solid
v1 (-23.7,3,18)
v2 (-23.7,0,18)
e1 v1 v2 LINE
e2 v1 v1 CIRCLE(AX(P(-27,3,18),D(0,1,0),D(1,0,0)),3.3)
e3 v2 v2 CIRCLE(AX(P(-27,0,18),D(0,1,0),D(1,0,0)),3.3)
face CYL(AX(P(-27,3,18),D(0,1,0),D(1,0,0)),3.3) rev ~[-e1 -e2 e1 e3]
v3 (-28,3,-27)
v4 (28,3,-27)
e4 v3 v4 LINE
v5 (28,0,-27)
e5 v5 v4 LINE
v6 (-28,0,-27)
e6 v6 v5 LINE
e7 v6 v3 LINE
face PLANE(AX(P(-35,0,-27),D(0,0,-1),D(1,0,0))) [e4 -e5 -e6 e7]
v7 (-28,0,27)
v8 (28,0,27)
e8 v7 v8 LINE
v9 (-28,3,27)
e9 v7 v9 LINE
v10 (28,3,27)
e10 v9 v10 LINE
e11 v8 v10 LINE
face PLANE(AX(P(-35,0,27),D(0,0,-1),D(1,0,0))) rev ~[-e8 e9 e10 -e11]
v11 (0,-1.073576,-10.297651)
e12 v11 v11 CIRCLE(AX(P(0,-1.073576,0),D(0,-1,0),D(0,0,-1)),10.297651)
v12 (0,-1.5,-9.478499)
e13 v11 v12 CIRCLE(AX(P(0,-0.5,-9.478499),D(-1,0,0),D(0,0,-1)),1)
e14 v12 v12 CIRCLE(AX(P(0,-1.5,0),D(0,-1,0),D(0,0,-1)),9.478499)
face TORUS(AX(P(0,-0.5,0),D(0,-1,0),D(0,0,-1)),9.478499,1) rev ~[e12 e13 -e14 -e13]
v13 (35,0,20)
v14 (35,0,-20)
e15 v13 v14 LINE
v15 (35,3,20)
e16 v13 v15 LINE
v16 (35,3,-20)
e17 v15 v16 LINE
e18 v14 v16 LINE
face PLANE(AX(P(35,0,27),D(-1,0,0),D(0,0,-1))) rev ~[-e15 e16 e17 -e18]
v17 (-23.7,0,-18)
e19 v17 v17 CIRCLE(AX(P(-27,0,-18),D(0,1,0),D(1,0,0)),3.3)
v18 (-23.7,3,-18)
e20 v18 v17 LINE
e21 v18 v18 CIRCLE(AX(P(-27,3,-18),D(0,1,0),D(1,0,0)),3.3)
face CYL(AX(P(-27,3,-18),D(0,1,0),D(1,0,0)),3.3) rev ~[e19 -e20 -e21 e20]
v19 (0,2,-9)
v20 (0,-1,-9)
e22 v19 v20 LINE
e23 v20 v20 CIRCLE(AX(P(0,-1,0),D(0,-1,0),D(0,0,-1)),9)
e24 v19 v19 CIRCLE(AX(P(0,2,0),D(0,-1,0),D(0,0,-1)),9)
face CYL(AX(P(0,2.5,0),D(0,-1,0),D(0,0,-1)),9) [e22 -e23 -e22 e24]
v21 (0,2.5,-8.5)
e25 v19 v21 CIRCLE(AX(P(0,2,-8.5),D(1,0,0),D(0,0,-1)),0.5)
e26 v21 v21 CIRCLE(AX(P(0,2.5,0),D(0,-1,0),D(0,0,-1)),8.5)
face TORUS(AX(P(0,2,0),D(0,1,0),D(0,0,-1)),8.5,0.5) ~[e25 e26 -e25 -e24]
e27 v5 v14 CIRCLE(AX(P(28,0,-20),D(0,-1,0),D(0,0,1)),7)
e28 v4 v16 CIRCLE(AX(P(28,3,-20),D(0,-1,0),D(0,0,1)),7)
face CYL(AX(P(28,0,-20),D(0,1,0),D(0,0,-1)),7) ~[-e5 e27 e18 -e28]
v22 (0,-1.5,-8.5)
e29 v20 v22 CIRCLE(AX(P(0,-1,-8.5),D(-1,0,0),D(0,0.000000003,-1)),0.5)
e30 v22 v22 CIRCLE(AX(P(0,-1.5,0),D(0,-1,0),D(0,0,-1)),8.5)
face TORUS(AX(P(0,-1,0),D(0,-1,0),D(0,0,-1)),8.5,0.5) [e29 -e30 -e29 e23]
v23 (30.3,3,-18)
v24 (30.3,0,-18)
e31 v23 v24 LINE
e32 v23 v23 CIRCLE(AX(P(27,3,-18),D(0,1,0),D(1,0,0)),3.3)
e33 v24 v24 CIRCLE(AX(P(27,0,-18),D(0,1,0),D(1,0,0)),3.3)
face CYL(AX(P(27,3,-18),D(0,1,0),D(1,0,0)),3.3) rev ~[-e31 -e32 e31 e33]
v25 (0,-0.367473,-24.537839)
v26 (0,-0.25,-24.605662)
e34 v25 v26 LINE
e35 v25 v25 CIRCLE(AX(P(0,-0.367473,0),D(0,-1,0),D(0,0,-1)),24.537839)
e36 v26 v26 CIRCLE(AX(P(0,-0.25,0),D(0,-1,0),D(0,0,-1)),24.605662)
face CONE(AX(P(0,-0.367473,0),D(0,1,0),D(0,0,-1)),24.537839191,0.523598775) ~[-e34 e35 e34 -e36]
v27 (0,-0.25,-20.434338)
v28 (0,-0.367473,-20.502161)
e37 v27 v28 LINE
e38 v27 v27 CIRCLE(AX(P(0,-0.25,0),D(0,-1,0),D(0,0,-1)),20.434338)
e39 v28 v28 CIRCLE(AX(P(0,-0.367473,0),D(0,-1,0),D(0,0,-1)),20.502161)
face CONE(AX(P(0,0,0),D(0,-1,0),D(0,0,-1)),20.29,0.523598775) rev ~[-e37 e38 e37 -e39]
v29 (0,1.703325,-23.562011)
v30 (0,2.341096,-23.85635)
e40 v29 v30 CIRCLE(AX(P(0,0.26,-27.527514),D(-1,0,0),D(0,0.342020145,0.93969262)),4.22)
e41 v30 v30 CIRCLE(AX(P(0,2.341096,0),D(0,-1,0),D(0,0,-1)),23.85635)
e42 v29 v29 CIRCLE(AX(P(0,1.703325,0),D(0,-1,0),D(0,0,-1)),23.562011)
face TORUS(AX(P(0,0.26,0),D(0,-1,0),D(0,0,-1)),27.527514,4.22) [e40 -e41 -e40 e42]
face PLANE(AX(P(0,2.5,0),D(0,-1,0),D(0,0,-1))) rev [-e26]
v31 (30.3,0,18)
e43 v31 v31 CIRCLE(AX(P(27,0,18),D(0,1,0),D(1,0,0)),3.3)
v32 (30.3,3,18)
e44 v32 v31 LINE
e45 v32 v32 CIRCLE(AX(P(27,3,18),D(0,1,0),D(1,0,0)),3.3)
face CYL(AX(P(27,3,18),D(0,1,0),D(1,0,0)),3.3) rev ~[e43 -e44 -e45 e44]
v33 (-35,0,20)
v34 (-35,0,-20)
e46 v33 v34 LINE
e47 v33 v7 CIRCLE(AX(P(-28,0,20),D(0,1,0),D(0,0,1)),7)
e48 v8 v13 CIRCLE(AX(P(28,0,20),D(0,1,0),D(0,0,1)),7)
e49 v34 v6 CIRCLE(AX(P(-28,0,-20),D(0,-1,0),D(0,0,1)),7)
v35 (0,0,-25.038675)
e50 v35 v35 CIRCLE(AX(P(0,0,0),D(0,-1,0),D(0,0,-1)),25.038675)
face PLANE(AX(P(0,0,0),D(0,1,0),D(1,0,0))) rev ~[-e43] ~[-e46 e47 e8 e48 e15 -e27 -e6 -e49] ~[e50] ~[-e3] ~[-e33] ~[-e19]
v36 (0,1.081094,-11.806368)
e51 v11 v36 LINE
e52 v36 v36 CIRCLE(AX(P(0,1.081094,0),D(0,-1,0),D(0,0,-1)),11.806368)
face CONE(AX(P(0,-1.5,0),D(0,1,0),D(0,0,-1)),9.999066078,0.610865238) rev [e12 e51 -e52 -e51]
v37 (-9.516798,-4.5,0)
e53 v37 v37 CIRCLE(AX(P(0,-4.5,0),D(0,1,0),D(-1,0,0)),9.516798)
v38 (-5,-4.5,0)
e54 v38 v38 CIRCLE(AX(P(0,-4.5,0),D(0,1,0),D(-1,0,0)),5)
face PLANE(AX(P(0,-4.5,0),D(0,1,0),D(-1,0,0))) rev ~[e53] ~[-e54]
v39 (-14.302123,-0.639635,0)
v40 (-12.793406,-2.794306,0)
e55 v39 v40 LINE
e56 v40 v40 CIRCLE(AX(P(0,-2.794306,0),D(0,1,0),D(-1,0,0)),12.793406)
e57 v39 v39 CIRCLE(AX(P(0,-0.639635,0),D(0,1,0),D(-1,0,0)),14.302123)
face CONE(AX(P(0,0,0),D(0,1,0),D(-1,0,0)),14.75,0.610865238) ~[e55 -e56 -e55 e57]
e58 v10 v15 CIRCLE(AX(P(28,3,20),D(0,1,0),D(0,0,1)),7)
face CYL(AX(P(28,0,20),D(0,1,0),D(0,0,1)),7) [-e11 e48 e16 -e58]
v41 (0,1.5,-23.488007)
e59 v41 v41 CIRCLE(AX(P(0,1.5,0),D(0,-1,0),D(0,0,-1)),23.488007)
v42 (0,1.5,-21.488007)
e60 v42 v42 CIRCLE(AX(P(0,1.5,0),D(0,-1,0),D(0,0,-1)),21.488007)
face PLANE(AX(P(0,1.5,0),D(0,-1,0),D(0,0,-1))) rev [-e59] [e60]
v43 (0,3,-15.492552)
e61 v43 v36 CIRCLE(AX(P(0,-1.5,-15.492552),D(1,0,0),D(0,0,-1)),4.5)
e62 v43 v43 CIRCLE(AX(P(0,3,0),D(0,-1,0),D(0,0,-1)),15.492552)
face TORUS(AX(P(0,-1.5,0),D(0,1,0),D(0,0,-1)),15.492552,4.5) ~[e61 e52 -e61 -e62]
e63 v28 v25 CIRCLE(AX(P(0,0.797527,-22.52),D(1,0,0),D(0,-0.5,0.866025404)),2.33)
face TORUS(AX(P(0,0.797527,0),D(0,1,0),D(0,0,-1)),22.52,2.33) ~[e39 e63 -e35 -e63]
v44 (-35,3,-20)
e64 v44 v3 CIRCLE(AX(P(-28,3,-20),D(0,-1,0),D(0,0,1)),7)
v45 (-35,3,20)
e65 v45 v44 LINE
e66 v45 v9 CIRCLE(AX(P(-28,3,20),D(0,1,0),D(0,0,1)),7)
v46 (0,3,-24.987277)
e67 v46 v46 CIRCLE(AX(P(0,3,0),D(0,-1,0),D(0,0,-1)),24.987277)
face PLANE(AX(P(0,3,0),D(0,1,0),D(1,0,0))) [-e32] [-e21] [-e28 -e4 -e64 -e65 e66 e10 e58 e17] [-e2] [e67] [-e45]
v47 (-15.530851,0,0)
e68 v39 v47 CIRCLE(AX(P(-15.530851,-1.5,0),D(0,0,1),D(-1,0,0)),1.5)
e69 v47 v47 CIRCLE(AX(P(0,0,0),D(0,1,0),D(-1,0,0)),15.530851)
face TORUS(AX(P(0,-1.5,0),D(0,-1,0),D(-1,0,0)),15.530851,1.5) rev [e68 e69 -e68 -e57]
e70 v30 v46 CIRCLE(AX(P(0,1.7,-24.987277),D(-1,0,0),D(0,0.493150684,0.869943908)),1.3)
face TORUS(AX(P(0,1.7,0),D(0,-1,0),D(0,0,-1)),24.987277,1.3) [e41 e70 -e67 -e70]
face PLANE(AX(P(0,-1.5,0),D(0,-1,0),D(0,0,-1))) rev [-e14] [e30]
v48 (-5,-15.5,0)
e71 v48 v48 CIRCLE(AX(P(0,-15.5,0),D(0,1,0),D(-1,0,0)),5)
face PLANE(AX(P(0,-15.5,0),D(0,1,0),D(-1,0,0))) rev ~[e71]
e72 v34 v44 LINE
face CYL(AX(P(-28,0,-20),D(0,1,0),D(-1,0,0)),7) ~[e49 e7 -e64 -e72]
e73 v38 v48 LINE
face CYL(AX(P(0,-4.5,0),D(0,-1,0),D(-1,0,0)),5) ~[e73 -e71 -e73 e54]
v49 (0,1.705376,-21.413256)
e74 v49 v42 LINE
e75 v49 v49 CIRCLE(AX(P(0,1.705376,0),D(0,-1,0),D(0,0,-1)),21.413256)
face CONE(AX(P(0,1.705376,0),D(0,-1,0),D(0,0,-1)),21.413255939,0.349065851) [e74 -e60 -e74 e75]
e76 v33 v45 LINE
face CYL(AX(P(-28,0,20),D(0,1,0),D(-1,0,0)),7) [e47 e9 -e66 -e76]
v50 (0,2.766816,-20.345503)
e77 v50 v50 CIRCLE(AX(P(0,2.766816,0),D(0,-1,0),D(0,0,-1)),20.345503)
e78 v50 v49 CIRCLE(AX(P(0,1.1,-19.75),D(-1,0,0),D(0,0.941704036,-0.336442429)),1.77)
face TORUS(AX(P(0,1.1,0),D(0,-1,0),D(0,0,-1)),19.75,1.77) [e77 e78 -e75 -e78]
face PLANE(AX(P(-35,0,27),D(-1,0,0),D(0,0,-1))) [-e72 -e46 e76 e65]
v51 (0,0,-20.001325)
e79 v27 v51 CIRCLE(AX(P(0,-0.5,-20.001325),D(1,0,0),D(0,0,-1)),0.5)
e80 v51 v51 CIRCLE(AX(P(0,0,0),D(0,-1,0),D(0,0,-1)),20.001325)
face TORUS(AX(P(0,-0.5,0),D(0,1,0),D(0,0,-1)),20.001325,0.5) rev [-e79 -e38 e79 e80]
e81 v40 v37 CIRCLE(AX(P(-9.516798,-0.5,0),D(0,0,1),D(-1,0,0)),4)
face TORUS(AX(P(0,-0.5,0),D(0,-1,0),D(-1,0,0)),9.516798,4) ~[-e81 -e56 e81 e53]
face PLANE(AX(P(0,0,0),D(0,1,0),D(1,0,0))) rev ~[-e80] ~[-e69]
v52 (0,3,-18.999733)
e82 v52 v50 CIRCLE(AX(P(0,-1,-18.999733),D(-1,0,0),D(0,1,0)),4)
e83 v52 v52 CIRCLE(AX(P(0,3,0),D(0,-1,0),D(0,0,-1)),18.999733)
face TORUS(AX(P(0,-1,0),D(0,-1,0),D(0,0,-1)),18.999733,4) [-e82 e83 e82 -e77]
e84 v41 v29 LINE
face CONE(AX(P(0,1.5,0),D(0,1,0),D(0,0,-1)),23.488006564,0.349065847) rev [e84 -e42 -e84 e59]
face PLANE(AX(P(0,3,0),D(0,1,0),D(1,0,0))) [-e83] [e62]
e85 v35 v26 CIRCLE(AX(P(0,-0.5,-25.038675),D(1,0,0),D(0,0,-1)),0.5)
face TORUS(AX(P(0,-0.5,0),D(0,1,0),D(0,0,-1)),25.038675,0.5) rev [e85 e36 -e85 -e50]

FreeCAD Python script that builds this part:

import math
import FreeCAD as App
import Part
import Sketcher

V = App.Vector
Q = App.Units.Quantity


def edges_at(feature, points):
    """Names of the edges that pass closest to the given points."""
    edges = feature.Shape.Edges
    near = lambda p: min(range(len(edges)), key=lambda i: edges[i].distToShape(Part.Vertex(*p))[0])
    return sorted({f"Edge{near(p) + 1}" for p in points})


def add_polygon(sketch, points):
    """Adds a closed chain of lines whose ends are joined by coincident constraints."""
    first, n = sketch.GeometryCount, len(points)
    for a, b in zip(points, points[1:] + points[:1]):
        sketch.addGeometry(Part.LineSegment(App.Vector(*a, 0), App.Vector(*b, 0)), False)
    for i in range(n):
        sketch.addConstraint(Sketcher.Constraint("Coincident", first + i, 2, first + (i + 1) % n, 1))

doc = App.newDocument("Part")
body = doc.addObject("PartDesign::Body", "Body")

# Sketch on XZ plane
sketch1 = body.newObject("Sketcher::SketchObject", "Sketch")
sketch1.AttachmentSupport = (doc.getObject("XZ_Plane"), [""])
sketch1.MapMode = "FlatFace"
add_polygon(sketch1, [(-35, -27), (-35, 27), (35, 27), (35, -27)])  # lines 0-3
sketch1.addConstraint(Sketcher.Constraint("Vertical", 0))
sketch1.addConstraint(Sketcher.Constraint("Horizontal", 1))
sketch1.addConstraint(Sketcher.Constraint("Vertical", 2))
sketch1.addConstraint(Sketcher.Constraint("Horizontal", 3))
sketch1.addConstraint(Sketcher.Constraint("Symmetric", 0, 2, 2, 2, -1, 1))
sketch1.addConstraint(Sketcher.Constraint("DistanceX", 1, 1, 1, 2, 70.0))
sketch1.addConstraint(Sketcher.Constraint("DistanceY", 0, 1, 0, 2, 54.0))
pad1 = body.newObject("PartDesign::Pad", "Pad")
pad1.Profile = sketch1
pad1.Length = 3
pad1.Reversed = True

# Sketch on XY plane
sketch2 = body.newObject("Sketcher::SketchObject", "Sketch001")
sketch2.AttachmentSupport = (doc.getObject("XY_Plane"), [""])
sketch2.MapMode = "FlatFace"
add_polygon(sketch2, [(-14.75, 0), (-11.599066, -4.5), (-5, -4.5), (-5, -15.5), (0, -15.5), (0, 0)])  # lines 0-5
sketch2.addConstraint(Sketcher.Constraint("Horizontal", 1))
sketch2.addConstraint(Sketcher.Constraint("Vertical", 2))
sketch2.addConstraint(Sketcher.Constraint("Horizontal", 3))
sketch2.addConstraint(Sketcher.Constraint("Vertical", 4))
sketch2.addConstraint(Sketcher.Constraint("Horizontal", 5))
sketch2.addConstraint(Sketcher.Constraint("Coincident", 4, 2, -1, 1))
sketch2.addConstraint(Sketcher.Constraint("DistanceX", 3, 1, 3, 2, 5.0))
sketch2.addConstraint(Sketcher.Constraint("DistanceY", 2, 2, 2, 1, 11.0))
sketch2.addConstraint(Sketcher.Constraint("Angle", 0, Q("-55 deg")))
sketch2.addConstraint(Sketcher.Constraint("DistanceY", 4, 1, 4, 2, 15.5))
sketch2.addConstraint(Sketcher.Constraint("DistanceX", 5, 2, 5, 1, 14.75))
revolution = body.newObject("PartDesign::Revolution", "Revolution")
revolution.Profile = sketch2
revolution.ReferenceAxis = (sketch2, ["V_Axis"])
revolution.Angle = 360
doc.recompute()

fillet = body.newObject("PartDesign::Fillet", "Fillet")
fillet.Base = (revolution, edges_at(revolution, [(11.599, -4.5, 0)]))
fillet.Radius = 4
doc.recompute()

fillet2 = body.newObject("PartDesign::Fillet", "Fillet001")
fillet2.Base = (fillet, edges_at(fillet, [(14.75, 0, 0)]))
fillet2.Radius = 1.5
doc.recompute()

fillet3 = body.newObject("PartDesign::Fillet", "Fillet002")
fillet3.Base = (fillet2, edges_at(fillet2, [
    (35, 1.5, 27),
    (-35, 1.5, 27),
    (-35, 1.5, -27),
    (35, 1.5, -27),
]))
fillet3.Radius = 7

# Sketch on YZ plane
sketch3 = body.newObject("Sketcher::SketchObject", "Sketch002")
sketch3.AttachmentSupport = (doc.getObject("YZ_Plane"), [""])
sketch3.MapMode = "FlatFace"
sketch3.addGeometry(Part.LineSegment(V(0, -20.29, 0), V(-0.367473, -20.502161, 0)), False)
sketch3.addGeometry(Part.ArcOfCircle(Part.Circle(V(0.797527, -22.52, 0), V(0, 0, 1), 2.33), math.radians(120), math.radians(240)), False)
sketch3.addGeometry(Part.LineSegment(V(-0.367473, -24.537839, 0), V(0, -24.75, 0)), False)
sketch3.addGeometry(Part.LineSegment(V(0, -24.75, 0), V(0, -20.29, 0)), False)
sketch3.addConstraint(Sketcher.Constraint("Tangent", 0, 2, 1, 1))
sketch3.addConstraint(Sketcher.Constraint("Tangent", 1, 2, 2, 1))
sketch3.addConstraint(Sketcher.Constraint("Coincident", 2, 2, 3, 1))
sketch3.addConstraint(Sketcher.Constraint("Coincident", 3, 2, 0, 1))
sketch3.addConstraint(Sketcher.Constraint("Vertical", 3))
sketch3.addConstraint(Sketcher.Constraint("PointOnObject", 2, 2, -2))
sketch3.addConstraint(Sketcher.Constraint("Vertical", 0, 2, 1, 2))
sketch3.addConstraint(Sketcher.Constraint("Angle", 0, Q("-150 deg")))
sketch3.addConstraint(Sketcher.Constraint("Radius", 1, 2.33))
sketch3.addConstraint(Sketcher.Constraint("DistanceY", 3, 1, 3, 2, 4.46))
sketch3.addConstraint(Sketcher.Constraint("DistanceY", 1, 3, -1, 1, 22.52))
revolution2 = body.newObject("PartDesign::Revolution", "Revolution001")
revolution2.Profile = sketch3
revolution2.ReferenceAxis = (sketch3, ["H_Axis"])
revolution2.Angle = 360

# Sketch on YZ plane
sketch4 = body.newObject("Sketcher::SketchObject", "Sketch003")
sketch4.AttachmentSupport = (doc.getObject("YZ_Plane"), [""])
sketch4.MapMode = "FlatFace"
sketch4.addGeometry(Part.LineSegment(V(3, 0, 0), V(2.5, 0, 0)), False)
sketch4.addGeometry(Part.LineSegment(V(2.5, 0, 0), V(2.5, -9, 0)), False)
sketch4.addGeometry(Part.LineSegment(V(2.5, -9, 0), V(-1, -9, 0)), False)
sketch4.addGeometry(Part.ArcOfCircle(Part.Circle(V(-1, -8.5, 0), V(0, 0, 1), 0.5), math.radians(180), math.radians(270)), False)
sketch4.addGeometry(Part.LineSegment(V(-1.5, -8.5, 0), V(-1.5, -9.999066, 0)), False)
sketch4.addGeometry(Part.LineSegment(V(-1.5, -9.999066, 0), V(3, -13.15, 0)), False)
sketch4.addGeometry(Part.LineSegment(V(3, -13.15, 0), V(3, 0, 0)), False)
sketch4.addConstraint(Sketcher.Constraint("Coincident", 0, 2, 1, 1))
sketch4.addConstraint(Sketcher.Constraint("Coincident", 1, 2, 2, 1))
sketch4.addConstraint(Sketcher.Constraint("Tangent", 2, 2, 3, 2))
sketch4.addConstraint(Sketcher.Constraint("Tangent", 3, 1, 4, 1))
sketch4.addConstraint(Sketcher.Constraint("Coincident", 4, 2, 5, 1))
sketch4.addConstraint(Sketcher.Constraint("Coincident", 5, 2, 6, 1))
sketch4.addConstraint(Sketcher.Constraint("Coincident", 6, 2, 0, 1))
sketch4.addConstraint(Sketcher.Constraint("Horizontal", 0))
sketch4.addConstraint(Sketcher.Constraint("Vertical", 1))
sketch4.addConstraint(Sketcher.Constraint("Horizontal", 2))
sketch4.addConstraint(Sketcher.Constraint("Vertical", 4))
sketch4.addConstraint(Sketcher.Constraint("Vertical", 6))
sketch4.addConstraint(Sketcher.Constraint("PointOnObject", 0, 2, -1))
sketch4.addConstraint(Sketcher.Constraint("Radius", 3, 0.5))
sketch4.addConstraint(Sketcher.Constraint("DistanceY", 1, 2, 1, 1, 9.0))
sketch4.addConstraint(Sketcher.Constraint("Angle", 5, Q("-35 deg")))
sketch4.addConstraint(Sketcher.Constraint("DistanceX", 0, 2, 0, 1, 0.5))
sketch4.addConstraint(Sketcher.Constraint("DistanceX", 2, 2, 2, 1, 3.5))
sketch4.addConstraint(Sketcher.Constraint("DistanceX", 3, 3, -1, 1, 1.0))
sketch4.addConstraint(Sketcher.Constraint("DistanceY", 6, 1, 6, 2, 13.15))
groove = body.newObject("PartDesign::Groove", "Groove")
groove.Profile = sketch4
groove.ReferenceAxis = (sketch4, ["H_Axis"])
groove.Angle = 360

# Sketch on YZ plane
sketch5 = body.newObject("Sketcher::SketchObject", "Sketch004")
sketch5.AttachmentSupport = (doc.getObject("YZ_Plane"), [""])
sketch5.MapMode = "FlatFace"
sketch5.addGeometry(Part.LineSegment(V(1.705376, -21.413256, 0), V(1.5, -21.488007, 0)), False)
sketch5.addGeometry(Part.LineSegment(V(1.5, -21.488007, 0), V(1.5, -23.488007, 0)), False)
sketch5.addGeometry(Part.LineSegment(V(1.5, -23.488007, 0), V(1.703325, -23.562011, 0)), False)
sketch5.addGeometry(Part.ArcOfCircle(Part.Circle(V(0.26, -27.527514, 0), V(0, 0, 1), 4.22), math.radians(60.452122), math.radians(70)), False)
sketch5.addGeometry(Part.ArcOfCircle(Part.Circle(V(1.7, -24.987277, 0), V(0, 0, 1), 1.3), math.radians(0), math.radians(60.452122)), False)
sketch5.addGeometry(Part.LineSegment(V(3, -24.987277, 0), V(3, -18.999733, 0)), False)
sketch5.addGeometry(Part.ArcOfCircle(Part.Circle(V(-1, -18.999733, 0), V(0, 0, 1), 4), math.radians(-19.660275), math.radians(0)), False)
sketch5.addGeometry(Part.ArcOfCircle(Part.Circle(V(1.1, -19.75, 0), V(0, 0, 1), 1.77), math.radians(-70), math.radians(-19.660275)), False)
sketch5.addConstraint(Sketcher.Constraint("Coincident", 0, 2, 1, 1))
sketch5.addConstraint(Sketcher.Constraint("Coincident", 1, 2, 2, 1))
sketch5.addConstraint(Sketcher.Constraint("Tangent", 2, 2, 3, 2))
sketch5.addConstraint(Sketcher.Constraint("Tangent", 3, 1, 4, 2))
sketch5.addConstraint(Sketcher.Constraint("Tangent", 4, 1, 5, 1))
sketch5.addConstraint(Sketcher.Constraint("Tangent", 5, 2, 6, 2))
sketch5.addConstraint(Sketcher.Constraint("Tangent", 6, 1, 7, 2))
sketch5.addConstraint(Sketcher.Constraint("Tangent", 7, 1, 0, 1))
sketch5.addConstraint(Sketcher.Constraint("Vertical", 1))
sketch5.addConstraint(Sketcher.Constraint("Vertical", 5))
sketch5.addConstraint(Sketcher.Constraint("Radius", 6, 4.0))
sketch5.addConstraint(Sketcher.Constraint("Radius", 4, 1.3))
sketch5.addConstraint(Sketcher.Constraint("DistanceY", 1, 2, 1, 1, 2.0))
sketch5.addConstraint(Sketcher.Constraint("Angle", 0, Q("-160 deg")))
sketch5.addConstraint(Sketcher.Constraint("Angle", 2, Q("-20 deg")))
sketch5.addConstraint(Sketcher.Constraint("Radius", 3, 4.22))
sketch5.addConstraint(Sketcher.Constraint("Radius", 7, 1.77))
sketch5.addConstraint(Sketcher.Constraint("DistanceX", 6, 3, -1, 1, 1.0))
sketch5.addConstraint(Sketcher.Constraint("DistanceX", -1, 1, 7, 3, 1.1))
sketch5.addConstraint(Sketcher.Constraint("DistanceX", -1, 1, 0, 2, 1.5))
sketch5.addConstraint(Sketcher.Constraint("DistanceX", -1, 1, 3, 3, 0.26))
sketch5.addConstraint(Sketcher.Constraint("DistanceY", 7, 3, -1, 1, 19.75))
groove2 = body.newObject("PartDesign::Groove", "Groove001")
groove2.Profile = sketch5
groove2.ReferenceAxis = (sketch5, ["H_Axis"])
groove2.Angle = 360

# Sketch on XZ plane
sketch6 = body.newObject("Sketcher::SketchObject", "Sketch005")
sketch6.AttachmentSupport = (doc.getObject("XZ_Plane"), [""])
sketch6.MapMode = "FlatFace"
sketch6.AttachmentOffset = App.Placement(V(0, 0, -3), App.Rotation())
sketch6.addGeometry(Part.Circle(V(-27, -18, 0), V(0, 0, 1), 3.3), False)
sketch6.addGeometry(Part.Circle(V(27, -18, 0), V(0, 0, 1), 3.3), False)
sketch6.addGeometry(Part.Circle(V(27, 18, 0), V(0, 0, 1), 3.3), False)
sketch6.addGeometry(Part.Circle(V(-27, 18, 0), V(0, 0, 1), 3.3), False)
sketch6.addConstraint(Sketcher.Constraint("Equal", 0, 1))
sketch6.addConstraint(Sketcher.Constraint("Equal", 1, 2))
sketch6.addConstraint(Sketcher.Constraint("Equal", 2, 3))
sketch6.addConstraint(Sketcher.Constraint("Symmetric", 0, 3, 2, 3, -1, 1))
sketch6.addConstraint(Sketcher.Constraint("Symmetric", 1, 3, 3, 3, -1, 1))
sketch6.addConstraint(Sketcher.Constraint("Symmetric", 0, 3, 1, 3, -2))
sketch6.addConstraint(Sketcher.Constraint("Diameter", 0, 6.6))
sketch6.addConstraint(Sketcher.Constraint("DistanceX", 0, 3, -1, 1, 27.0))
sketch6.addConstraint(Sketcher.Constraint("DistanceY", 0, 3, -1, 1, 18.0))
pocket1 = body.newObject("PartDesign::Pocket", "Pocket")
pocket1.Profile = sketch6
pocket1.Type = "ThroughAll"
pocket1.Reversed = True
doc.recompute()

fillet4 = body.newObject("PartDesign::Fillet", "Fillet003")
fillet4.Base = (pocket1, edges_at(pocket1, [(0, 3, 13.15)]))
fillet4.Radius = 4.5
doc.recompute()

fillet5 = body.newObject("PartDesign::Fillet", "Fillet004")
fillet5.Base = (fillet4, edges_at(fillet4, [(0, -1.5, 9.999)]))
fillet5.Radius = 1
doc.recompute()

fillet6 = body.newObject("PartDesign::Fillet", "Fillet005")
fillet6.Base = (fillet5, edges_at(fillet5, [(0, 0, 24.75), (0, 0, 20.29), (0, 2.5, 9)]))
fillet6.Radius = 0.5

doc.recompute()
